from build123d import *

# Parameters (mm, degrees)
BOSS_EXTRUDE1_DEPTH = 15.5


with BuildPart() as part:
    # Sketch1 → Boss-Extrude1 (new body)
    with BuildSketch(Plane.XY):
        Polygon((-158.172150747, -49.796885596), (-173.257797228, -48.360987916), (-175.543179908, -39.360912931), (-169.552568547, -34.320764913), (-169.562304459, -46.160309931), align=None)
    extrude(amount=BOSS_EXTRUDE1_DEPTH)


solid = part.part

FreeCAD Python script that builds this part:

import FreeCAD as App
import Part
import Sketcher
Q = App.Units.Quantity

doc = App.newDocument("Part")
params = doc.addObject("Spreadsheet::Sheet", "Params")
for row, (alias, value) in enumerate([
    ("pad1_length", "15.5 mm"),
], start=1):
    params.set(f"A{row}", alias)
    params.set(f"B{row}", "=" + value)
    params.setAlias(f"B{row}", alias)

body = doc.addObject("PartDesign::Body", "Body")

sketch1 = body.newObject("Sketcher::SketchObject", "Sketch")
sketch1.AttachmentSupport = (doc.getObject("XY_Plane"), [""])
sketch1.MapMode = "FlatFace"
sketch1.addGeometry([
    Part.LineSegment(App.Vector(-173.257797, -48.360988, 0), App.Vector(-158.172151, -49.796886, 0)),
    Part.LineSegment(App.Vector(-158.172151, -49.796886, 0), App.Vector(-169.562304, -46.16031, 0)),
    Part.LineSegment(App.Vector(-169.562304, -46.16031, 0), App.Vector(-169.552569, -34.320765, 0)),
    Part.LineSegment(App.Vector(-169.552569, -34.320765, 0), App.Vector(-175.54318, -39.360913, 0)),
    Part.LineSegment(App.Vector(-175.54318, -39.360913, 0), App.Vector(-173.257797, -48.360988, 0)),
], False)
sketch1.addConstraint([
    Sketcher.Constraint("Coincident", 0, 2, 1, 1),
    Sketcher.Constraint("Coincident", 1, 2, 2, 1),
    Sketcher.Constraint("Coincident", 2, 2, 3, 1),
    Sketcher.Constraint("Coincident", 3, 2, 4, 1),
    Sketcher.Constraint("Coincident", 4, 2, 0, 1),
    Sketcher.Constraint("Distance", 1, Q("11.9566 mm")),
    Sketcher.Constraint("Distance", 0, Q("15.153829 mm")),
    Sketcher.Constraint("Distance", 2, Q("11.839549 mm")),
    Sketcher.Constraint("DistanceX", 0, 2, -1, 1, Q("158.172151 mm")),
    Sketcher.Constraint("DistanceY", 1, 2, -1, 1, Q("46.16031 mm")),
    Sketcher.Constraint("DistanceX", 2, 2, -1, 1, Q("169.552569 mm")),
    Sketcher.Constraint("DistanceX", 3, 2, -1, 1, Q("175.54318 mm")),
    Sketcher.Constraint("DistanceY", 0, 2, 2, 2, Q("15.476121 mm")),
    Sketcher.Constraint("DistanceY", 3, 2, 2, 2, Q("5.040148 mm")),
    Sketcher.Constraint("DistanceX", 4, 2, 2, 2, Q("3.705229 mm")),
])
pad1 = body.newObject("PartDesign::Pad", "Pad")
pad1.Profile = sketch1
pad1.setExpression("Length", "Params.pad1_length")

doc.recompute()
